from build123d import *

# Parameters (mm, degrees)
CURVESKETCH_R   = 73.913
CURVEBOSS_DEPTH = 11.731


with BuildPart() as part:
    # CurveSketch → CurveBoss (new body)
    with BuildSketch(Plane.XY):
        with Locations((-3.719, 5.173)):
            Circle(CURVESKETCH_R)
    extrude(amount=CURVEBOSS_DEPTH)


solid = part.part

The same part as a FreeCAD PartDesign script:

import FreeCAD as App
import Part
import Sketcher

V = App.Vector

doc = App.newDocument("Part")
body = doc.addObject("PartDesign::Body", "Body")

sketch1 = body.newObject("Sketcher::SketchObject", "Sketch")
sketch1.AttachmentSupport = (doc.getObject("XY_Plane"), [""])
sketch1.MapMode = "FlatFace"
sketch1.addGeometry(Part.Circle(V(-4, 5, 0), V(0, 0, 1), 74), False)
sketch1.addConstraint(Sketcher.Constraint("Diameter", 0, 147.826))
sketch1.addConstraint(Sketcher.Constraint("DistanceX", 0, 3, -1, 1, 3.719))
sketch1.addConstraint(Sketcher.Constraint("DistanceY", -1, 1, 0, 3, 5.173))
pad1 = body.newObject("PartDesign::Pad", "Pad")
pad1.Profile = sketch1
pad1.Length = 11.731

doc.recompute()
